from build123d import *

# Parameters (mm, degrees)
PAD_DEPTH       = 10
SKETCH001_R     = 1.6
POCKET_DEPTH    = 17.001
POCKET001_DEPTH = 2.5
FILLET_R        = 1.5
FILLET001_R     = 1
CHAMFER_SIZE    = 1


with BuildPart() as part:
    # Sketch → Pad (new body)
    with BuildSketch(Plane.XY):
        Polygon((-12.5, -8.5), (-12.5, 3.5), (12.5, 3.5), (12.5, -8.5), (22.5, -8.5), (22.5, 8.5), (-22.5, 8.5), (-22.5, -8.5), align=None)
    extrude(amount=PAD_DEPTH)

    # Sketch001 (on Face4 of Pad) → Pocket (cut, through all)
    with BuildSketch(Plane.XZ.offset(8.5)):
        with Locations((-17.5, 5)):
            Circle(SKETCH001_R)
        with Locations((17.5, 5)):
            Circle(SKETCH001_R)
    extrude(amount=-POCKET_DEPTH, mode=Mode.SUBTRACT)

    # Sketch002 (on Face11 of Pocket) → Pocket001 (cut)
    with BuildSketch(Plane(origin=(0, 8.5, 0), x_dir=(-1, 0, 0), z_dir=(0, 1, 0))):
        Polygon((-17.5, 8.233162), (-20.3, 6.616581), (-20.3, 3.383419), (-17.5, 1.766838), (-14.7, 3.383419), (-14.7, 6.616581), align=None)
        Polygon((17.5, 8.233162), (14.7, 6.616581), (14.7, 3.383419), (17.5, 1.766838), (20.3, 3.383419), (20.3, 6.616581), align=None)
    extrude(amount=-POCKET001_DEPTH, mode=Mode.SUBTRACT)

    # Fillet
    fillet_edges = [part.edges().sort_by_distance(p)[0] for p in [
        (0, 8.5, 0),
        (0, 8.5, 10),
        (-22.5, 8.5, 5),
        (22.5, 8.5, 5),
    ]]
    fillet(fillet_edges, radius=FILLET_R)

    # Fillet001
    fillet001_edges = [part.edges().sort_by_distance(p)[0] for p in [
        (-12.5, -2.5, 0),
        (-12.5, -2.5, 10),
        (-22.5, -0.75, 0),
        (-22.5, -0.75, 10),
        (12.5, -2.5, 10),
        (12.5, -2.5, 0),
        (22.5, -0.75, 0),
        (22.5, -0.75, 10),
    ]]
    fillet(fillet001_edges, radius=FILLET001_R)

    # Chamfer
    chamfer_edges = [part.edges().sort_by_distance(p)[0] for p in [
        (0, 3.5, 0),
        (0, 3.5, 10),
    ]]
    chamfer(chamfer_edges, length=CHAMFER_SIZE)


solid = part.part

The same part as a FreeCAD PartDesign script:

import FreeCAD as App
import Part
import Sketcher
Q = App.Units.Quantity


def edges_at(feature, points):
    """Names of the edges that pass closest to the given points."""
    edges = feature.Shape.Edges
    near = lambda p: min(range(len(edges)), key=lambda i: edges[i].distToShape(Part.Vertex(*p))[0])
    return sorted({f"Edge{near(p) + 1}" for p in points})

doc = App.newDocument("Part")
params = doc.addObject("Spreadsheet::Sheet", "Params")
for row, (alias, value) in enumerate([
    ("sketch1_width", "25 mm"),
    ("sketch1_width2", "10 mm"),
    ("sketch1_height", "12 mm"),
    ("sketch1_height2", "17 mm"),
    ("pad1_length", "10 mm"),
    ("sketch2_diameter", "3.2 mm"),
    ("pocket2_length", "2.5 mm"),
    ("fillet_radius", "1.5 mm"),
    ("fillet2_radius", "1 mm"),
    ("chamfer_size", "1 mm"),
], start=1):
    params.set(f"A{row}", alias)
    params.set(f"B{row}", "=" + value)
    params.setAlias(f"B{row}", alias)

body = doc.addObject("PartDesign::Body", "Body")

sketch1 = body.newObject("Sketcher::SketchObject", "Sketch")
sketch1.AttachmentSupport = (doc.getObject("XY_Plane"), [""])
sketch1.MapMode = "FlatFace"
sketch1.addGeometry([
    Part.LineSegment(App.Vector(-12, -8, 0), App.Vector(-12, 4, 0)),
    Part.LineSegment(App.Vector(-12, 4, 0), App.Vector(12, 4, 0)),
    Part.LineSegment(App.Vector(12, 4, 0), App.Vector(12, -8, 0)),
    Part.LineSegment(App.Vector(12, -8, 0), App.Vector(22, -8, 0)),
    Part.LineSegment(App.Vector(22, -8, 0), App.Vector(22, 8, 0)),
    Part.LineSegment(App.Vector(22, 8, 0), App.Vector(-22, 8, 0)),
    Part.LineSegment(App.Vector(-22, 8, 0), App.Vector(-22, -8, 0)),
    Part.LineSegment(App.Vector(-22, -8, 0), App.Vector(-12, -8, 0)),
], False)
sketch1.addConstraint([
    Sketcher.Constraint("Coincident", 0, 2, 1, 1),
    Sketcher.Constraint("Coincident", 1, 2, 2, 1),
    Sketcher.Constraint("Coincident", 2, 2, 3, 1),
    Sketcher.Constraint("Coincident", 3, 2, 4, 1),
    Sketcher.Constraint("Coincident", 4, 2, 5, 1),
    Sketcher.Constraint("Coincident", 5, 2, 6, 1),
    Sketcher.Constraint("Coincident", 6, 2, 7, 1),
    Sketcher.Constraint("Coincident", 7, 2, 0, 1),
    Sketcher.Constraint("Vertical", 0),
    Sketcher.Constraint("Horizontal", 1),
    Sketcher.Constraint("Vertical", 2),
    Sketcher.Constraint("Horizontal", 3),
    Sketcher.Constraint("Vertical", 4),
    Sketcher.Constraint("Horizontal", 5),
    Sketcher.Constraint("Vertical", 6),
    Sketcher.Constraint("Horizontal", 7),
    Sketcher.Constraint("Symmetric", 3, 2, 5, 2, -1, 1),
    Sketcher.Constraint("Symmetric", 2, 2, 7, 2, -2),
    Sketcher.Constraint("DistanceX", 1, 1, 1, 2, 25.0),
    Sketcher.Constraint("DistanceX", 3, 1, 3, 2, 10.0),
    Sketcher.Constraint("DistanceY", 0, 1, 0, 2, 12.0),
    Sketcher.Constraint("DistanceY", 4, 1, 4, 2, 17.0),
])
sketch1.setExpression("Constraints[18]", "Params.sketch1_width")
sketch1.setExpression("Constraints[19]", "Params.sketch1_width2")
sketch1.setExpression("Constraints[20]", "Params.sketch1_height")
sketch1.setExpression("Constraints[21]", "Params.sketch1_height2")
pad1 = body.newObject("PartDesign::Pad", "Pad")
pad1.Profile = sketch1
pad1.setExpression("Length", "Params.pad1_length")

sketch2 = body.newObject("Sketcher::SketchObject", "Sketch001")
sketch2.AttachmentSupport = (doc.getObject("XZ_Plane"), [""])
sketch2.MapMode = "FlatFace"
sketch2.AttachmentOffset = App.Placement(App.Vector(0, 0, 8.5), App.Rotation())
sketch2.addGeometry([
    Part.Circle(App.Vector(-17.5, 5, 0), App.Vector(0, 0, 1), 1.6),
    Part.Circle(App.Vector(17.5, 5, 0), App.Vector(0, 0, 1), 1.6),
], False)
sketch2.addConstraint([
    Sketcher.Constraint("Equal", 0, 1),
    Sketcher.Constraint("Symmetric", 0, 3, 1, 3, -2),
    Sketcher.Constraint("Diameter", 0, 3.2),
    Sketcher.Constraint("DistanceY", -1, 1, 0, 3, 5.0),
    Sketcher.Constraint("DistanceX", 0, 3, 1, 3, 35.0),
])
sketch2.setExpression("Constraints[2]", "Params.sketch2_diameter")
pocket1 = body.newObject("PartDesign::Pocket", "Pocket")
pocket1.Profile = sketch2
pocket1.Type = "ThroughAll"

sketch3 = body.newObject("Sketcher::SketchObject", "Sketch002")
sketch3.AttachmentSupport = (doc.getObject("XZ_Plane"), [""])
sketch3.MapMode = "FlatFace"
sketch3.AttachmentOffset = App.Placement(App.Vector(0, 0, -8.5), App.Rotation())
sketch3.addGeometry([
    Part.LineSegment(App.Vector(17.5, 8.2, 0), App.Vector(20.3, 6.6, 0)),
    Part.LineSegment(App.Vector(20.3, 6.6, 0), App.Vector(20.3, 3.4, 0)),
    Part.LineSegment(App.Vector(20.3, 3.4, 0), App.Vector(17.5, 1.8, 0)),
    Part.LineSegment(App.Vector(17.5, 1.8, 0), App.Vector(14.7, 3.4, 0)),
    Part.LineSegment(App.Vector(14.7, 3.4, 0), App.Vector(14.7, 6.6, 0)),
    Part.LineSegment(App.Vector(14.7, 6.6, 0), App.Vector(17.5, 8.2, 0)),
    Part.LineSegment(App.Vector(-17.5, 8.2, 0), App.Vector(-14.7, 6.6, 0)),
    Part.LineSegment(App.Vector(-14.7, 6.6, 0), App.Vector(-14.7, 3.4, 0)),
    Part.LineSegment(App.Vector(-14.7, 3.4, 0), App.Vector(-17.5, 1.8, 0)),
    Part.LineSegment(App.Vector(-17.5, 1.8, 0), App.Vector(-20.3, 3.4, 0)),
    Part.LineSegment(App.Vector(-20.3, 3.4, 0), App.Vector(-20.3, 6.6, 0)),
    Part.LineSegment(App.Vector(-20.3, 6.6, 0), App.Vector(-17.5, 8.2, 0)),
], False)
sketch3.addConstraint([
    Sketcher.Constraint("Coincident", 0, 2, 1, 1),
    Sketcher.Constraint("Coincident", 1, 2, 2, 1),
    Sketcher.Constraint("Coincident", 2, 2, 3, 1),
    Sketcher.Constraint("Coincident", 3, 2, 4, 1),
    Sketcher.Constraint("Coincident", 4, 2, 5, 1),
    Sketcher.Constraint("Coincident", 5, 2, 0, 1),
    Sketcher.Constraint("Coincident", 6, 2, 7, 1),
    Sketcher.Constraint("Coincident", 7, 2, 8, 1),
    Sketcher.Constraint("Coincident", 8, 2, 9, 1),
    Sketcher.Constraint("Coincident", 9, 2, 10, 1),
    Sketcher.Constraint("Coincident", 10, 2, 11, 1),
    Sketcher.Constraint("Coincident", 11, 2, 6, 1),
    Sketcher.Constraint("Vertical", 1),
    Sketcher.Constraint("Vertical", 4),
    Sketcher.Constraint("Vertical", 7),
    Sketcher.Constraint("Vertical", 10),
    Sketcher.Constraint("Symmetric", 4, 2, 6, 2, -2),
    Sketcher.Constraint("Symmetric", 2, 2, 8, 2, -2),
    Sketcher.Constraint("Symmetric", 1, 2, 9, 2, -2),
    Sketcher.Constraint("Symmetric", 5, 2, 11, 2, -2),
    Sketcher.Constraint("Parallel", 0, 3),
    Sketcher.Constraint("Parallel", 2, 5),
    Sketcher.Constraint("Parallel", 3, 6),
    Sketcher.Constraint("Parallel", 5, 8),
    Sketcher.Constraint("Parallel", 8, 11),
    Sketcher.Constraint("Horizontal", 1, 2, 3, 2),
    Sketcher.Constraint("Horizontal", 0, 2, 4, 2),
    Sketcher.Constraint("Angle", 0, Q("-30.000004 deg")),
    Sketcher.Constraint("DistanceX", 6, 2, 0, 2, 35.0),
    Sketcher.Constraint("DistanceX", -1, 1, 0, 2, 20.3),
    Sketcher.Constraint("DistanceY", 1, 2, 1, 1, 3.233162),
    Sketcher.Constraint("DistanceY", -1, 1, 0, 2, 6.616581),
])
pocket2 = body.newObject("PartDesign::Pocket", "Pocket001")
pocket2.Profile = sketch3
pocket2.setExpression("Length", "Params.pocket2_length")
pocket2.Reversed = True
doc.recompute()

fillet = body.newObject("PartDesign::Fillet", "Fillet")
fillet.Base = (pocket2, edges_at(pocket2, [
    (0, 8.5, 0),
    (0, 8.5, 10),
    (-22.5, 8.5, 5),
    (22.5, 8.5, 5),
]))
fillet.setExpression("Radius", "Params.fillet_radius")
doc.recompute()

fillet2 = body.newObject("PartDesign::Fillet", "Fillet001")
fillet2.Base = (fillet, edges_at(fillet, [
    (-12.5, -2.5, 0),
    (-12.5, -2.5, 10),
    (-22.5, -0.75, 0),
    (-22.5, -0.75, 10),
    (12.5, -2.5, 10),
    (12.5, -2.5, 0),
    (22.5, -0.75, 0),
    (22.5, -0.75, 10),
]))
fillet2.setExpression("Radius", "Params.fillet2_radius")
doc.recompute()

chamfer = body.newObject("PartDesign::Chamfer", "Chamfer")
chamfer.Base = (fillet2, edges_at(fillet2, [(0, 3.5, 0), (0, 3.5, 10)]))
chamfer.setExpression("Size", "Params.chamfer_size")

doc.recompute()
